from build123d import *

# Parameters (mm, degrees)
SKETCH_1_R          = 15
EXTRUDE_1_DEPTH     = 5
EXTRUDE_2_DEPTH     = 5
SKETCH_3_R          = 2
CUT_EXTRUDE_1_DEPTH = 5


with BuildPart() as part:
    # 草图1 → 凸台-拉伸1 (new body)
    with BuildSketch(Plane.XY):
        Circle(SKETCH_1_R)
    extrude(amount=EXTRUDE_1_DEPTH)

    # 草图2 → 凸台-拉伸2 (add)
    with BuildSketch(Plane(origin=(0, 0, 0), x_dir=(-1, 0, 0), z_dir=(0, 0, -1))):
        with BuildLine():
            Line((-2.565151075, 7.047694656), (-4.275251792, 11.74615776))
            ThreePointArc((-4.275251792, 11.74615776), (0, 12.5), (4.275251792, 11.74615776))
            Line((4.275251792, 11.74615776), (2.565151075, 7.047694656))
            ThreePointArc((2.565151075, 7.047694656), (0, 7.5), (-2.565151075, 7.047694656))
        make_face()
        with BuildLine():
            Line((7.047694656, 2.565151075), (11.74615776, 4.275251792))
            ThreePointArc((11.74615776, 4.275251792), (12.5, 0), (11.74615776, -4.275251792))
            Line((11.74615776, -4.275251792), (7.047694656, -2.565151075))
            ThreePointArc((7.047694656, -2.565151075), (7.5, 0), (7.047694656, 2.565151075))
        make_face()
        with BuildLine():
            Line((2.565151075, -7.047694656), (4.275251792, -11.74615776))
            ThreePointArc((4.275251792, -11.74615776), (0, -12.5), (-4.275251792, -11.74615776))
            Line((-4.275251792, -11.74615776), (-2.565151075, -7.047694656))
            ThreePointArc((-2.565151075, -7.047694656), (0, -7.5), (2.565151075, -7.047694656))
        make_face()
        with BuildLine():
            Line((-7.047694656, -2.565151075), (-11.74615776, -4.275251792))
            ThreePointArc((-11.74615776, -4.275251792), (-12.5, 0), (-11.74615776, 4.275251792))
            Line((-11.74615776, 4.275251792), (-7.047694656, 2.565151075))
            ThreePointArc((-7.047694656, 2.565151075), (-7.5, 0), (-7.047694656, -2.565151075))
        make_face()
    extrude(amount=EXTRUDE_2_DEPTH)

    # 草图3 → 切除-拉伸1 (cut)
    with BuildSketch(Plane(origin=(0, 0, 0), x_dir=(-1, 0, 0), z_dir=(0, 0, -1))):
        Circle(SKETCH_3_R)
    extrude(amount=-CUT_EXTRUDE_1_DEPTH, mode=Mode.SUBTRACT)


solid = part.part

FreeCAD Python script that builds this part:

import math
import FreeCAD as App
import Part
import Sketcher
from FreeCAD import Vector
Q = App.Units.Quantity

doc = App.newDocument("Part")
body = doc.addObject("PartDesign::Body", "Body")

sketch1 = doc.addObject("Sketcher::SketchObject", "Sketch")
body.addObject(sketch1)
sketch1.AttachmentSupport = (doc.XY_Plane, [""])
sketch1.MapMode = "FlatFace"
sketch1.addGeometry(Part.Circle(Vector(0, 0, 0), Vector(0, 0, 1), 15), False)
sketch1.addConstraint(Sketcher.Constraint("Coincident", 0, 3, -1, 1))
sketch1.addConstraint(Sketcher.Constraint("Diameter", 0, 30.0))
pad1 = doc.addObject("PartDesign::Pad", "Pad")
body.addObject(pad1)
pad1.Profile = sketch1
pad1.Length = 5

sketch2 = doc.addObject("Sketcher::SketchObject", "Sketch001")
body.addObject(sketch2)
sketch2.AttachmentSupport = (doc.XY_Plane, [""])
sketch2.MapMode = "FlatFace"
sketch2.addGeometry(Part.LineSegment(Vector(4, 12, 0), Vector(3, 7, 0)), False)
sketch2.addGeometry(Part.ArcOfCircle(Part.Circle(Vector(0, 0, 0), Vector(0, 0, 1), 8), math.radians(70), math.radians(110)), False)
sketch2.addGeometry(Part.LineSegment(Vector(-3, 7, 0), Vector(-4, 12, 0)), False)
sketch2.addGeometry(Part.ArcOfCircle(Part.Circle(Vector(0, 0, 0), Vector(0, 0, 1), 13), math.radians(70), math.radians(110)), False)
sketch2.addGeometry(Part.LineSegment(Vector(-12, 4, 0), Vector(-7, 3, 0)), False)
sketch2.addGeometry(Part.ArcOfCircle(Part.Circle(Vector(0, 0, 0), Vector(0, 0, 1), 8), math.radians(160), math.radians(200)), False)
sketch2.addGeometry(Part.LineSegment(Vector(-7, -3, 0), Vector(-12, -4, 0)), False)
sketch2.addGeometry(Part.ArcOfCircle(Part.Circle(Vector(0, 0, 0), Vector(0, 0, 1), 13), math.radians(160), math.radians(200)), False)
sketch2.addGeometry(Part.LineSegment(Vector(-4, -12, 0), Vector(-3, -7, 0)), False)
sketch2.addGeometry(Part.ArcOfCircle(Part.Circle(Vector(0, 0, 0), Vector(0, 0, 1), 8), math.radians(-110), math.radians(-70)), False)
sketch2.addGeometry(Part.LineSegment(Vector(3, -7, 0), Vector(4, -12, 0)), False)
sketch2.addGeometry(Part.ArcOfCircle(Part.Circle(Vector(0, 0, 0), Vector(0, 0, 1), 13), math.radians(-110), math.radians(-70)), False)
sketch2.addGeometry(Part.LineSegment(Vector(12, -4, 0), Vector(7, -3, 0)), False)
sketch2.addGeometry(Part.ArcOfCircle(Part.Circle(Vector(0, 0, 0), Vector(0, 0, 1), 8), math.radians(-20), math.radians(20)), False)
sketch2.addGeometry(Part.LineSegment(Vector(7, 3, 0), Vector(12, 4, 0)), False)
sketch2.addGeometry(Part.ArcOfCircle(Part.Circle(Vector(0, 0, 0), Vector(0, 0, 1), 13), math.radians(-20), math.radians(20)), False)
sketch2.addConstraint(Sketcher.Constraint("Coincident", 0, 2, 1, 1))
sketch2.addConstraint(Sketcher.Constraint("Coincident", 1, 2, 2, 1))
sketch2.addConstraint(Sketcher.Constraint("Coincident", 2, 2, 3, 2))
sketch2.addConstraint(Sketcher.Constraint("Coincident", 3, 1, 0, 1))
sketch2.addConstraint(Sketcher.Constraint("Coincident", 4, 2, 5, 1))
sketch2.addConstraint(Sketcher.Constraint("Coincident", 5, 2, 6, 1))
sketch2.addConstraint(Sketcher.Constraint("Coincident", 6, 2, 7, 2))
sketch2.addConstraint(Sketcher.Constraint("Coincident", 7, 1, 4, 1))
sketch2.addConstraint(Sketcher.Constraint("Coincident", 8, 2, 9, 1))
sketch2.addConstraint(Sketcher.Constraint("Coincident", 9, 2, 10, 1))
sketch2.addConstraint(Sketcher.Constraint("Coincident", 10, 2, 11, 2))
sketch2.addConstraint(Sketcher.Constraint("Coincident", 11, 1, 8, 1))
sketch2.addConstraint(Sketcher.Constraint("Coincident", 12, 2, 13, 1))
sketch2.addConstraint(Sketcher.Constraint("Coincident", 13, 2, 14, 1))
sketch2.addConstraint(Sketcher.Constraint("Coincident", 14, 2, 15, 2))
sketch2.addConstraint(Sketcher.Constraint("Coincident", 15, 1, 12, 1))
sketch2.addConstraint(Sketcher.Constraint("Coincident", 1, 3, -1, 1))
sketch2.addConstraint(Sketcher.Constraint("Coincident", 3, 3, -1, 1))
sketch2.addConstraint(Sketcher.Constraint("Coincident", 5, 3, -1, 1))
sketch2.addConstraint(Sketcher.Constraint("Coincident", 7, 3, -1, 1))
sketch2.addConstraint(Sketcher.Constraint("Coincident", 9, 3, -1, 1))
sketch2.addConstraint(Sketcher.Constraint("Coincident", 11, 3, -1, 1))
sketch2.addConstraint(Sketcher.Constraint("Coincident", 13, 3, -1, 1))
sketch2.addConstraint(Sketcher.Constraint("Coincident", 15, 3, -1, 1))
sketch2.addConstraint(Sketcher.Constraint("Equal", 1, 5))
sketch2.addConstraint(Sketcher.Constraint("Equal", 3, 7))
sketch2.addConstraint(Sketcher.Constraint("Equal", 5, 9))
sketch2.addConstraint(Sketcher.Constraint("Equal", 7, 11))
sketch2.addConstraint(Sketcher.Constraint("Equal", 9, 13))
sketch2.addConstraint(Sketcher.Constraint("Equal", 11, 15))
sketch2.addConstraint(Sketcher.Constraint("Perpendicular", 0, 4))
sketch2.addConstraint(Sketcher.Constraint("Perpendicular", 2, 6))
sketch2.addConstraint(Sketcher.Constraint("Perpendicular", 4, 8))
sketch2.addConstraint(Sketcher.Constraint("Perpendicular", 6, 10))
sketch2.addConstraint(Sketcher.Constraint("Perpendicular", 8, 12))
sketch2.addConstraint(Sketcher.Constraint("Perpendicular", 10, 14))
sketch2.addConstraint(Sketcher.Constraint("Horizontal", 0, 2, 1, 2))
sketch2.addConstraint(Sketcher.Constraint("Horizontal", 2, 2, 3, 1))
sketch2.addConstraint(Sketcher.Constraint("Horizontal", 8, 2, 9, 2))
sketch2.addConstraint(Sketcher.Constraint("Horizontal", 5, 2, 12, 2))
sketch2.addConstraint(Sketcher.Constraint("Horizontal", 4, 2, 13, 2))
sketch2.addConstraint(Sketcher.Constraint("Vertical", 4, 2, 5, 2))
sketch2.addConstraint(Sketcher.Constraint("Vertical", 1, 2, 8, 2))
sketch2.addConstraint(Sketcher.Constraint("Radius", 1, 7.5))
sketch2.addConstraint(Sketcher.Constraint("Radius", 3, 12.5))
sketch2.addConstraint(Sketcher.Constraint("Angle", 0, Q("-110 deg")))
sketch2.addConstraint(Sketcher.Constraint("DistanceX", -1, 1, 0, 2, 2.565151))
sketch2.addConstraint(Sketcher.Constraint("DistanceY", -1, 1, 4, 2, 2.565151))
pad2 = doc.addObject("PartDesign::Pad", "Pad001")
body.addObject(pad2)
pad2.Profile = sketch2
pad2.Length = 5
pad2.Reversed = True

sketch3 = doc.addObject("Sketcher::SketchObject", "Sketch002")
body.addObject(sketch3)
sketch3.AttachmentSupport = (doc.XY_Plane, [""])
sketch3.MapMode = "FlatFace"
sketch3.addGeometry(Part.Circle(Vector(0, 0, 0), Vector(0, 0, 1), 2), False)
sketch3.addConstraint(Sketcher.Constraint("Coincident", 0, 3, -1, 1))
sketch3.addConstraint(Sketcher.Constraint("Diameter", 0, 4.0))
pocket1 = doc.addObject("PartDesign::Pocket", "Pocket")
body.addObject(pocket1)
pocket1.Profile = sketch3
pocket1.Length = 5
pocket1.Reversed = True

doc.recompute()
